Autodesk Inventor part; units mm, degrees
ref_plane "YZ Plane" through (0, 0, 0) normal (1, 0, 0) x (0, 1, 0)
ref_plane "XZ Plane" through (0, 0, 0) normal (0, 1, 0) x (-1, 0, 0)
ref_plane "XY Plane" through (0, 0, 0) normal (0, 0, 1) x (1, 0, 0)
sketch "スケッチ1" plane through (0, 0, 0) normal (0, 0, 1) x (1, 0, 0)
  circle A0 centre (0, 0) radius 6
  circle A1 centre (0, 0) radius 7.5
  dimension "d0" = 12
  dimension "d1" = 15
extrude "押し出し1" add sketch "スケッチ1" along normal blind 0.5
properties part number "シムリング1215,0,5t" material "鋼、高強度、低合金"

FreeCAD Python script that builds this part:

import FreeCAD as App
import Part
import Sketcher
from FreeCAD import Vector

doc = App.newDocument("Part")
body = doc.addObject("PartDesign::Body", "Body")

sketch1 = body.newObject("Sketcher::SketchObject", "Sketch")
sketch1.AttachmentSupport = (doc.getObject("XY_Plane"), [""])
sketch1.MapMode = "FlatFace"
sketch1.addGeometry([
    Part.Circle(Vector(0, 0, 0), Vector(0, 0, 1), 8),
    Part.Circle(Vector(0, 0, 0), Vector(0, 0, 1), 6),
], False)
sketch1.addConstraint([
    Sketcher.Constraint("Coincident", 0, 3, -1, 1),
    Sketcher.Constraint("Coincident", 1, 3, -1, 1),
    Sketcher.Constraint("Diameter", 0, 15.0),
    Sketcher.Constraint("Diameter", 1, 12.0),
])
pad1 = body.newObject("PartDesign::Pad", "Pad")
pad1.Profile = sketch1
pad1.Length = 0.5

doc.recompute()
